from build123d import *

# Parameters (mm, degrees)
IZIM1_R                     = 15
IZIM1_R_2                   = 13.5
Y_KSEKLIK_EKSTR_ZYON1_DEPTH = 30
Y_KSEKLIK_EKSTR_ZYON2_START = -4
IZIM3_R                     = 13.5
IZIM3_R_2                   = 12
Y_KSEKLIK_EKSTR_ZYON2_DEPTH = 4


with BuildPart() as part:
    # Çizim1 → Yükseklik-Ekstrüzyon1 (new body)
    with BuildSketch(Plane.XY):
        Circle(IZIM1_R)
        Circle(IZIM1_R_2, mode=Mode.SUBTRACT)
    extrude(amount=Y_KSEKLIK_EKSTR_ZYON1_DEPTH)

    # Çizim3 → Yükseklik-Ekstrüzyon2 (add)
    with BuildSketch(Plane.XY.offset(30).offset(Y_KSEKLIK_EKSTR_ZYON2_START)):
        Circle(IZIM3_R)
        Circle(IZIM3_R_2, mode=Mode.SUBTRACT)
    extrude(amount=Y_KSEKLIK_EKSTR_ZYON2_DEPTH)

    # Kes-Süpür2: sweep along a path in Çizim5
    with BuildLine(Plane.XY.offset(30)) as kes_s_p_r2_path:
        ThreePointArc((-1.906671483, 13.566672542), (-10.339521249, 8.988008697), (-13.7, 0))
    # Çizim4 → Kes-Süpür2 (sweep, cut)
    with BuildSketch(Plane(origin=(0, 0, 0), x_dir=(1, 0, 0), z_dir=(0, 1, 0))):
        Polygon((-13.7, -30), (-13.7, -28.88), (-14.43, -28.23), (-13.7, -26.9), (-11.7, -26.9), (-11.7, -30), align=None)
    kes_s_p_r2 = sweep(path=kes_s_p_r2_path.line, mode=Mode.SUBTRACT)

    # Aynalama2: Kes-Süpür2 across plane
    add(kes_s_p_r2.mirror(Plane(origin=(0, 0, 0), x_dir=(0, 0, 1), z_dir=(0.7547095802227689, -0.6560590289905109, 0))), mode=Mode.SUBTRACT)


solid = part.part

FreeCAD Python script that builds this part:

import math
import FreeCAD as App
import Part
import Sketcher

V = App.Vector
Q = App.Units.Quantity


def add_polygon(sketch, points):
    """Adds a closed chain of lines whose ends are joined by coincident constraints."""
    first, n = sketch.GeometryCount, len(points)
    for a, b in zip(points, points[1:] + points[:1]):
        sketch.addGeometry(Part.LineSegment(App.Vector(*a, 0), App.Vector(*b, 0)), False)
    for i in range(n):
        sketch.addConstraint(Sketcher.Constraint("Coincident", first + i, 2, first + (i + 1) % n, 1))

doc = App.newDocument("Part")
params = doc.addObject("Spreadsheet::Sheet", "Params")
for row, (alias, value) in enumerate([
    ("sketch1_diameter", "30 mm"),
    ("sketch1_diameter2", "27 mm"),
    ("pad1_length", "30 mm"),
    ("sketch2_diameter", "27 mm"),
    ("sketch2_diameter2", "24 mm"),
    ("pad2_length", "4 mm"),
    ("sketch3_width", "2 mm"),
    ("sketch3_height", "3.1 mm"),
    ("sketch3_height2", "1.12 mm"),
    ("sketch4_radius", "13.7 mm"),
], start=1):
    params.set(f"A{row}", alias)
    params.set(f"B{row}", "=" + value)
    params.setAlias(f"B{row}", alias)

body = doc.addObject("PartDesign::Body", "Body")

sketch1 = body.newObject("Sketcher::SketchObject", "Sketch")
sketch1.AttachmentSupport = (doc.getObject("XY_Plane"), [""])
sketch1.MapMode = "FlatFace"
sketch1.addGeometry(Part.Circle(V(0, 0, 0), V(0, 0, 1), 15), False)
sketch1.addGeometry(Part.Circle(V(0, 0, 0), V(0, 0, 1), 14), False)
sketch1.addConstraint(Sketcher.Constraint("Coincident", 0, 3, -1, 1))
sketch1.addConstraint(Sketcher.Constraint("Coincident", 1, 3, -1, 1))
sketch1.addConstraint(Sketcher.Constraint("Diameter", 0, Q("30 mm")))
sketch1.addConstraint(Sketcher.Constraint("Diameter", 1, Q("27 mm")))
sketch1.setExpression("Constraints[2]", "Params.sketch1_diameter")
sketch1.setExpression("Constraints[3]", "Params.sketch1_diameter2")
pad1 = body.newObject("PartDesign::Pad", "Pad")
pad1.Profile = sketch1
pad1.setExpression("Length", "Params.pad1_length")

sketch2 = body.newObject("Sketcher::SketchObject", "Sketch001")
sketch2.AttachmentSupport = (doc.getObject("XY_Plane"), [""])
sketch2.MapMode = "FlatFace"
sketch2.AttachmentOffset = App.Placement(V(0, 0, 26), App.Rotation())
sketch2.addGeometry(Part.Circle(V(0, 0, 0), V(0, 0, 1), 14), False)
sketch2.addGeometry(Part.Circle(V(0, 0, 0), V(0, 0, 1), 12), False)
sketch2.addConstraint(Sketcher.Constraint("Coincident", 0, 3, -1, 1))
sketch2.addConstraint(Sketcher.Constraint("Coincident", 1, 3, -1, 1))
sketch2.addConstraint(Sketcher.Constraint("Diameter", 0, Q("27 mm")))
sketch2.addConstraint(Sketcher.Constraint("Diameter", 1, Q("24 mm")))
sketch2.setExpression("Constraints[2]", "Params.sketch2_diameter")
sketch2.setExpression("Constraints[3]", "Params.sketch2_diameter2")
pad2 = body.newObject("PartDesign::Pad", "Pad001")
pad2.Profile = sketch2
pad2.setExpression("Length", "Params.pad2_length")

sketch3 = body.newObject("Sketcher::SketchObject", "Sketch002")
sketch3.AttachmentSupport = (doc.getObject("XZ_Plane"), [""])
sketch3.MapMode = "FlatFace"
add_polygon(sketch3, [(-13.7, 28.9), (-13.7, 30), (-11.7, 30), (-11.7, 26.9), (-13.7, 26.9), (-14.4, 28.2)])
sketch3.addConstraint(Sketcher.Constraint("Vertical", 0))
sketch3.addConstraint(Sketcher.Constraint("Horizontal", 1))
sketch3.addConstraint(Sketcher.Constraint("Vertical", 2))
sketch3.addConstraint(Sketcher.Constraint("Horizontal", 3))
sketch3.addConstraint(Sketcher.Constraint("Vertical", 0, 2, 3, 2))
sketch3.addConstraint(Sketcher.Constraint("DistanceX", 1, 1, 1, 2, Q("2 mm")))
sketch3.addConstraint(Sketcher.Constraint("DistanceY", 2, 2, 2, 1, Q("3.1 mm")))
sketch3.addConstraint(Sketcher.Constraint("DistanceY", -1, 1, 0, 2, Q("30 mm")))
sketch3.addConstraint(Sketcher.Constraint("DistanceY", 0, 1, 0, 2, Q("1.12 mm")))
sketch3.addConstraint(Sketcher.Constraint("DistanceX", 0, 2, -1, 1, Q("13.7 mm")))
sketch3.addConstraint(Sketcher.Constraint("DistanceX", 4, 2, -1, 1, Q("14.43 mm")))
sketch3.addConstraint(Sketcher.Constraint("DistanceY", -1, 1, 4, 2, Q("28.23 mm")))
sketch3.setExpression("Constraints[11]", "Params.sketch3_width")
sketch3.setExpression("Constraints[12]", "Params.sketch3_height")
sketch3.setExpression("Constraints[14]", "Params.sketch3_height2")

sketch4 = body.newObject("Sketcher::SketchObject", "Sketch003")
sketch4.AttachmentSupport = (doc.getObject("XY_Plane"), [""])
sketch4.MapMode = "FlatFace"
sketch4.AttachmentOffset = App.Placement(V(0, 0, 30), App.Rotation())
sketch4.addGeometry(Part.ArcOfCircle(Part.Circle(V(0, 0, 0), V(0, 0, 1), 14), math.radians(98), math.radians(180)), False)
sketch4.addConstraint(Sketcher.Constraint("Coincident", 0, 3, -1, 1))
sketch4.addConstraint(Sketcher.Constraint("PointOnObject", 0, 2, -1))
sketch4.addConstraint(Sketcher.Constraint("Radius", 0, Q("13.7 mm")))
sketch4.addConstraint(Sketcher.Constraint("DistanceX", 0, 1, -1, 1, Q("1.906671 mm")))
sketch4.setExpression("Constraints[2]", "Params.sketch4_radius")
doc.recompute()

subtractivepipe = body.newObject("PartDesign::SubtractivePipe", "SubtractivePipe")
subtractivepipe.Profile = sketch3
subtractivepipe.Spine = (sketch4, ["Edge1"])
doc.recompute()

datumplane = body.newObject("PartDesign::Plane", "DatumPlane")
datumplane.Placement = App.Placement(V(0, 0, 0), App.Rotation(V(-0.656059029, -0.75470958, 0), V(0, 0, -1), V(0.75470958, -0.656059029, 0), "ZXY"))
mirrored = body.newObject("PartDesign::Mirrored", "Mirrored")
mirrored.Originals = [subtractivepipe]
mirrored.MirrorPlane = (datumplane, [""])
body.Tip = mirrored

doc.recompute()
